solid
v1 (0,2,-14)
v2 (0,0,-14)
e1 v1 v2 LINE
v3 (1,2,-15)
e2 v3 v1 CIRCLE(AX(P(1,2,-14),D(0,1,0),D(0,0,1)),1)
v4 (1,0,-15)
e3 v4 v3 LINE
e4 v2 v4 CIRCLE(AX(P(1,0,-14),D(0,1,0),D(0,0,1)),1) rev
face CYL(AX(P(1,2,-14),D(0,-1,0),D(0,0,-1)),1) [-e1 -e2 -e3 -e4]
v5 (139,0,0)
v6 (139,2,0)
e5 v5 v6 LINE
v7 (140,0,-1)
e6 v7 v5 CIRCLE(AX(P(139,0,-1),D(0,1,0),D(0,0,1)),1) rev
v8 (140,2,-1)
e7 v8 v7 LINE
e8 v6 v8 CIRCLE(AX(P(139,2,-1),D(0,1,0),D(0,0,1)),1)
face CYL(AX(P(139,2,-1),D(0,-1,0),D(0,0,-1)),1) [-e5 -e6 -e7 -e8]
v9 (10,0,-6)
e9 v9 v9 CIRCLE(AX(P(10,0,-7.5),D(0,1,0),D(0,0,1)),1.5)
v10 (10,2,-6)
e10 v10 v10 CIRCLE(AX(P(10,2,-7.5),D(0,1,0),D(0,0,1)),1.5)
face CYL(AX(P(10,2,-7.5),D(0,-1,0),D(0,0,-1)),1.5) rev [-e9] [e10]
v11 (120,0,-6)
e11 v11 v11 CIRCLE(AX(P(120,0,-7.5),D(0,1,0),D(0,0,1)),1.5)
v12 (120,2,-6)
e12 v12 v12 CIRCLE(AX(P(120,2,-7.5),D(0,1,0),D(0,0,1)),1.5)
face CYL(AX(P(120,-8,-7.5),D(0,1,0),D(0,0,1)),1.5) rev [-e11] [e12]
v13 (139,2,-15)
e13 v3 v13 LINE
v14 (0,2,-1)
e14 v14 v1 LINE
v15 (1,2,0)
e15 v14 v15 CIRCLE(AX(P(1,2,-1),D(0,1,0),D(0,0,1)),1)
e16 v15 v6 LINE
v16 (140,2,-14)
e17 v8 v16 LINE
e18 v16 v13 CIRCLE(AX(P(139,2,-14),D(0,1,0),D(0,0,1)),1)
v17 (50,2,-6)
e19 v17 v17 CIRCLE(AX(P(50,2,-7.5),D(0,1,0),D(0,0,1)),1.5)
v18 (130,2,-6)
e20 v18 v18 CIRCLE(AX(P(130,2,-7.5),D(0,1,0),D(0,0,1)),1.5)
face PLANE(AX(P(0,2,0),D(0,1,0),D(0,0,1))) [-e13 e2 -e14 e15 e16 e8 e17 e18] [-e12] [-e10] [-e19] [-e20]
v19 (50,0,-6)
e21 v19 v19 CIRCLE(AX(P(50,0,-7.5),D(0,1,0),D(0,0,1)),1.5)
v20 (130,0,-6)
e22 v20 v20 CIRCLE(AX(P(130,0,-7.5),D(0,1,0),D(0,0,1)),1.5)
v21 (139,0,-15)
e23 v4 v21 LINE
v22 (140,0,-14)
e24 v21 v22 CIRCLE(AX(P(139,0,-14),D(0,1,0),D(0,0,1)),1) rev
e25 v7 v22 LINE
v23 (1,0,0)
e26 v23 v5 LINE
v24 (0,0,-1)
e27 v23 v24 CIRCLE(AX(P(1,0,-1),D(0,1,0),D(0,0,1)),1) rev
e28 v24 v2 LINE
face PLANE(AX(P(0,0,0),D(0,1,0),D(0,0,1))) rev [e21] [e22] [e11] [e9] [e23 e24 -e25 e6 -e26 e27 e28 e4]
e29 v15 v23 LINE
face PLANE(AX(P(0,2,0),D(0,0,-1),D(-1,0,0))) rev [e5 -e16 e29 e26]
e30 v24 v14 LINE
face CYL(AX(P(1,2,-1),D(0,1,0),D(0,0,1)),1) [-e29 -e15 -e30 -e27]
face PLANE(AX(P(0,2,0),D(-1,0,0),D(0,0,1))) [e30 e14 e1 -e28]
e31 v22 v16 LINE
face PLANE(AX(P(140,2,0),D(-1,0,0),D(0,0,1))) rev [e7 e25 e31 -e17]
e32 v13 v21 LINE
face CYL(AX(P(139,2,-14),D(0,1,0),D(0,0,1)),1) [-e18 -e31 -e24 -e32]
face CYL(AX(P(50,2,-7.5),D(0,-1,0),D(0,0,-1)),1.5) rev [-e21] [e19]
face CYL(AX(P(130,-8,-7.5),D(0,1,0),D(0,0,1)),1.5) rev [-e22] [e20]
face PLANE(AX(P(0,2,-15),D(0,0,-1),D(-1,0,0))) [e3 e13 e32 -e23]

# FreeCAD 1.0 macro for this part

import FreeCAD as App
import Part
import Sketcher

V = App.Vector


def edges_at(feature, points):
    """Names of the edges that pass closest to the given points."""
    edges = feature.Shape.Edges
    near = lambda p: min(range(len(edges)), key=lambda i: edges[i].distToShape(Part.Vertex(*p))[0])
    return sorted({f"Edge{near(p) + 1}" for p in points})

doc = App.newDocument("Part")
body = doc.addObject("PartDesign::Body", "Body")

# Sketch on XZ plane
sketch1 = body.newObject("Sketcher::SketchObject", "Sketch")
sketch1.AttachmentSupport = (doc.getObject("XZ_Plane"), [""])
sketch1.MapMode = "FlatFace"
sketch1.addGeometry(Part.LineSegment(V(140, -15, 0), V(0, -15, 0)), False)
sketch1.addGeometry(Part.LineSegment(V(0, -15, 0), V(0, 0, 0)), False)
sketch1.addGeometry(Part.LineSegment(V(0, 0, 0), V(140, 0, 0)), False)
sketch1.addGeometry(Part.LineSegment(V(140, 0, 0), V(140, -15, 0)), False)
sketch1.addGeometry(Part.Circle(V(50, -7.5, 0), V(0, 0, 1), 1.5), False)
sketch1.addGeometry(Part.Circle(V(10, -7.5, 0), V(0, 0, 1), 1.5), False)
sketch1.addConstraint(Sketcher.Constraint("Coincident", 0, 2, 1, 1))
sketch1.addConstraint(Sketcher.Constraint("Coincident", 1, 2, 2, 1))
sketch1.addConstraint(Sketcher.Constraint("Coincident", 2, 2, 3, 1))
sketch1.addConstraint(Sketcher.Constraint("Coincident", 3, 2, 0, 1))
sketch1.addConstraint(Sketcher.Constraint("Horizontal", 0))
sketch1.addConstraint(Sketcher.Constraint("Vertical", 1))
sketch1.addConstraint(Sketcher.Constraint("Horizontal", 2))
sketch1.addConstraint(Sketcher.Constraint("Vertical", 3))
sketch1.addConstraint(Sketcher.Constraint("Coincident", 1, 2, -1, 1))
sketch1.addConstraint(Sketcher.Constraint("Equal", 4, 5))
sketch1.addConstraint(Sketcher.Constraint("Horizontal", 4, 3, 5, 3))
sketch1.addConstraint(Sketcher.Constraint("Diameter", 4, 3.0))
sketch1.addConstraint(Sketcher.Constraint("DistanceX", 0, 2, 0, 1, 140.0))
sketch1.addConstraint(Sketcher.Constraint("DistanceY", 1, 1, 1, 2, 15.0))
sketch1.addConstraint(Sketcher.Constraint("DistanceX", -1, 1, 4, 3, 50.0))
sketch1.addConstraint(Sketcher.Constraint("DistanceX", -1, 1, 5, 3, 10.0))
sketch1.addConstraint(Sketcher.Constraint("DistanceY", 4, 3, -1, 1, 7.5))
pad1 = body.newObject("PartDesign::Pad", "Pad")
pad1.Profile = sketch1
pad1.Length = 2
pad1.Reversed = True
doc.recompute()

fillet = body.newObject("PartDesign::Fillet", "Fillet")
fillet.Base = (pad1, edges_at(pad1, [
    (0, 1, 0),
    (0, 1, -15),
    (140, 1, -15),
    (140, 1, 0),
]))
fillet.Radius = 1

# Sketch on XZ plane
sketch2 = body.newObject("Sketcher::SketchObject", "Sketch001")
sketch2.AttachmentSupport = (doc.getObject("XZ_Plane"), [""])
sketch2.MapMode = "FlatFace"
sketch2.AttachmentOffset = App.Placement(V(0, 0, -2), App.Rotation())
sketch2.addGeometry(Part.Circle(V(130, -7.5, 0), V(0, 0, 1), 1.5), False)
sketch2.addGeometry(Part.Circle(V(120, -7.5, 0), V(0, 0, 1), 1.5), False)
sketch2.addConstraint(Sketcher.Constraint("Equal", 0, 1))
sketch2.addConstraint(Sketcher.Constraint("Horizontal", 0, 3, 1, 3))
sketch2.addConstraint(Sketcher.Constraint("Diameter", 0, 3.0))
sketch2.addConstraint(Sketcher.Constraint("DistanceX", -1, 1, 0, 3, 130.0))
sketch2.addConstraint(Sketcher.Constraint("DistanceX", -1, 1, 1, 3, 120.0))
sketch2.addConstraint(Sketcher.Constraint("DistanceY", 0, 3, -1, 1, 7.5))
pocket1 = body.newObject("PartDesign::Pocket", "Pocket")
pocket1.Profile = sketch2
pocket1.Length = 10
pocket1.Reversed = True

doc.recompute()
